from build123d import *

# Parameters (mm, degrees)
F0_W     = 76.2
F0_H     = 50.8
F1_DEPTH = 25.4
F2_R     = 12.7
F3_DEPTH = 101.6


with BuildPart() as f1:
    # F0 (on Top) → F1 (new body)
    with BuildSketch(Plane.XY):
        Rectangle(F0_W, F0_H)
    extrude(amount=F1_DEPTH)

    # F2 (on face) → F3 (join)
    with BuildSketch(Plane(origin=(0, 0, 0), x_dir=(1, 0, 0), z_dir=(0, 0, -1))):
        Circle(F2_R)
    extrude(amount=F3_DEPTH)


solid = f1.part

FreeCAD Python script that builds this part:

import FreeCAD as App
import Part
import Sketcher
Q = App.Units.Quantity

doc = App.newDocument("Part")
body = doc.addObject("PartDesign::Body", "Body")

sketch1 = body.newObject("Sketcher::SketchObject", "Sketch")
sketch1.AttachmentSupport = (doc.getObject("XY_Plane"), [""])
sketch1.MapMode = "FlatFace"
sketch1.addGeometry(Part.LineSegment(App.Vector(-38.1, 25.4, 0), App.Vector(-38.1, -25.4, 0)), False)
sketch1.addGeometry(Part.LineSegment(App.Vector(-38.1, -25.4, 0), App.Vector(38.1, -25.4, 0)), False)
sketch1.addGeometry(Part.LineSegment(App.Vector(38.1, -25.4, 0), App.Vector(38.1, 25.4, 0)), False)
sketch1.addGeometry(Part.LineSegment(App.Vector(38.1, 25.4, 0), App.Vector(-38.1, 25.4, 0)), False)
sketch1.addConstraint(Sketcher.Constraint("Coincident", 0, 2, 1, 1))
sketch1.addConstraint(Sketcher.Constraint("Coincident", 1, 2, 2, 1))
sketch1.addConstraint(Sketcher.Constraint("Coincident", 2, 2, 3, 1))
sketch1.addConstraint(Sketcher.Constraint("Coincident", 3, 2, 0, 1))
sketch1.addConstraint(Sketcher.Constraint("Vertical", 0))
sketch1.addConstraint(Sketcher.Constraint("Horizontal", 1))
sketch1.addConstraint(Sketcher.Constraint("Vertical", 2))
sketch1.addConstraint(Sketcher.Constraint("Horizontal", 3))
sketch1.addConstraint(Sketcher.Constraint("Symmetric", 0, 2, 2, 2, -1, 1))
sketch1.addConstraint(Sketcher.Constraint("DistanceX", 1, 1, 1, 2, Q("3 in")))
sketch1.addConstraint(Sketcher.Constraint("DistanceY", 0, 2, 0, 1, Q("2 in")))
pad1 = body.newObject("PartDesign::Pad", "Pad")
pad1.Profile = sketch1
pad1.Length = Q("1 in")

sketch2 = body.newObject("Sketcher::SketchObject", "Sketch001")
sketch2.AttachmentSupport = (doc.getObject("XY_Plane"), [""])
sketch2.MapMode = "FlatFace"
sketch2.addGeometry(Part.Circle(App.Vector(0, 0, 0), App.Vector(0, 0, 1), 12.7), False)
sketch2.addConstraint(Sketcher.Constraint("Coincident", 0, 3, -1, 1))
sketch2.addConstraint(Sketcher.Constraint("Diameter", 0, Q("1 in")))
pad2 = body.newObject("PartDesign::Pad", "Pad001")
pad2.Profile = sketch2
pad2.Length = Q("4 in")
pad2.Reversed = True

doc.recompute()
